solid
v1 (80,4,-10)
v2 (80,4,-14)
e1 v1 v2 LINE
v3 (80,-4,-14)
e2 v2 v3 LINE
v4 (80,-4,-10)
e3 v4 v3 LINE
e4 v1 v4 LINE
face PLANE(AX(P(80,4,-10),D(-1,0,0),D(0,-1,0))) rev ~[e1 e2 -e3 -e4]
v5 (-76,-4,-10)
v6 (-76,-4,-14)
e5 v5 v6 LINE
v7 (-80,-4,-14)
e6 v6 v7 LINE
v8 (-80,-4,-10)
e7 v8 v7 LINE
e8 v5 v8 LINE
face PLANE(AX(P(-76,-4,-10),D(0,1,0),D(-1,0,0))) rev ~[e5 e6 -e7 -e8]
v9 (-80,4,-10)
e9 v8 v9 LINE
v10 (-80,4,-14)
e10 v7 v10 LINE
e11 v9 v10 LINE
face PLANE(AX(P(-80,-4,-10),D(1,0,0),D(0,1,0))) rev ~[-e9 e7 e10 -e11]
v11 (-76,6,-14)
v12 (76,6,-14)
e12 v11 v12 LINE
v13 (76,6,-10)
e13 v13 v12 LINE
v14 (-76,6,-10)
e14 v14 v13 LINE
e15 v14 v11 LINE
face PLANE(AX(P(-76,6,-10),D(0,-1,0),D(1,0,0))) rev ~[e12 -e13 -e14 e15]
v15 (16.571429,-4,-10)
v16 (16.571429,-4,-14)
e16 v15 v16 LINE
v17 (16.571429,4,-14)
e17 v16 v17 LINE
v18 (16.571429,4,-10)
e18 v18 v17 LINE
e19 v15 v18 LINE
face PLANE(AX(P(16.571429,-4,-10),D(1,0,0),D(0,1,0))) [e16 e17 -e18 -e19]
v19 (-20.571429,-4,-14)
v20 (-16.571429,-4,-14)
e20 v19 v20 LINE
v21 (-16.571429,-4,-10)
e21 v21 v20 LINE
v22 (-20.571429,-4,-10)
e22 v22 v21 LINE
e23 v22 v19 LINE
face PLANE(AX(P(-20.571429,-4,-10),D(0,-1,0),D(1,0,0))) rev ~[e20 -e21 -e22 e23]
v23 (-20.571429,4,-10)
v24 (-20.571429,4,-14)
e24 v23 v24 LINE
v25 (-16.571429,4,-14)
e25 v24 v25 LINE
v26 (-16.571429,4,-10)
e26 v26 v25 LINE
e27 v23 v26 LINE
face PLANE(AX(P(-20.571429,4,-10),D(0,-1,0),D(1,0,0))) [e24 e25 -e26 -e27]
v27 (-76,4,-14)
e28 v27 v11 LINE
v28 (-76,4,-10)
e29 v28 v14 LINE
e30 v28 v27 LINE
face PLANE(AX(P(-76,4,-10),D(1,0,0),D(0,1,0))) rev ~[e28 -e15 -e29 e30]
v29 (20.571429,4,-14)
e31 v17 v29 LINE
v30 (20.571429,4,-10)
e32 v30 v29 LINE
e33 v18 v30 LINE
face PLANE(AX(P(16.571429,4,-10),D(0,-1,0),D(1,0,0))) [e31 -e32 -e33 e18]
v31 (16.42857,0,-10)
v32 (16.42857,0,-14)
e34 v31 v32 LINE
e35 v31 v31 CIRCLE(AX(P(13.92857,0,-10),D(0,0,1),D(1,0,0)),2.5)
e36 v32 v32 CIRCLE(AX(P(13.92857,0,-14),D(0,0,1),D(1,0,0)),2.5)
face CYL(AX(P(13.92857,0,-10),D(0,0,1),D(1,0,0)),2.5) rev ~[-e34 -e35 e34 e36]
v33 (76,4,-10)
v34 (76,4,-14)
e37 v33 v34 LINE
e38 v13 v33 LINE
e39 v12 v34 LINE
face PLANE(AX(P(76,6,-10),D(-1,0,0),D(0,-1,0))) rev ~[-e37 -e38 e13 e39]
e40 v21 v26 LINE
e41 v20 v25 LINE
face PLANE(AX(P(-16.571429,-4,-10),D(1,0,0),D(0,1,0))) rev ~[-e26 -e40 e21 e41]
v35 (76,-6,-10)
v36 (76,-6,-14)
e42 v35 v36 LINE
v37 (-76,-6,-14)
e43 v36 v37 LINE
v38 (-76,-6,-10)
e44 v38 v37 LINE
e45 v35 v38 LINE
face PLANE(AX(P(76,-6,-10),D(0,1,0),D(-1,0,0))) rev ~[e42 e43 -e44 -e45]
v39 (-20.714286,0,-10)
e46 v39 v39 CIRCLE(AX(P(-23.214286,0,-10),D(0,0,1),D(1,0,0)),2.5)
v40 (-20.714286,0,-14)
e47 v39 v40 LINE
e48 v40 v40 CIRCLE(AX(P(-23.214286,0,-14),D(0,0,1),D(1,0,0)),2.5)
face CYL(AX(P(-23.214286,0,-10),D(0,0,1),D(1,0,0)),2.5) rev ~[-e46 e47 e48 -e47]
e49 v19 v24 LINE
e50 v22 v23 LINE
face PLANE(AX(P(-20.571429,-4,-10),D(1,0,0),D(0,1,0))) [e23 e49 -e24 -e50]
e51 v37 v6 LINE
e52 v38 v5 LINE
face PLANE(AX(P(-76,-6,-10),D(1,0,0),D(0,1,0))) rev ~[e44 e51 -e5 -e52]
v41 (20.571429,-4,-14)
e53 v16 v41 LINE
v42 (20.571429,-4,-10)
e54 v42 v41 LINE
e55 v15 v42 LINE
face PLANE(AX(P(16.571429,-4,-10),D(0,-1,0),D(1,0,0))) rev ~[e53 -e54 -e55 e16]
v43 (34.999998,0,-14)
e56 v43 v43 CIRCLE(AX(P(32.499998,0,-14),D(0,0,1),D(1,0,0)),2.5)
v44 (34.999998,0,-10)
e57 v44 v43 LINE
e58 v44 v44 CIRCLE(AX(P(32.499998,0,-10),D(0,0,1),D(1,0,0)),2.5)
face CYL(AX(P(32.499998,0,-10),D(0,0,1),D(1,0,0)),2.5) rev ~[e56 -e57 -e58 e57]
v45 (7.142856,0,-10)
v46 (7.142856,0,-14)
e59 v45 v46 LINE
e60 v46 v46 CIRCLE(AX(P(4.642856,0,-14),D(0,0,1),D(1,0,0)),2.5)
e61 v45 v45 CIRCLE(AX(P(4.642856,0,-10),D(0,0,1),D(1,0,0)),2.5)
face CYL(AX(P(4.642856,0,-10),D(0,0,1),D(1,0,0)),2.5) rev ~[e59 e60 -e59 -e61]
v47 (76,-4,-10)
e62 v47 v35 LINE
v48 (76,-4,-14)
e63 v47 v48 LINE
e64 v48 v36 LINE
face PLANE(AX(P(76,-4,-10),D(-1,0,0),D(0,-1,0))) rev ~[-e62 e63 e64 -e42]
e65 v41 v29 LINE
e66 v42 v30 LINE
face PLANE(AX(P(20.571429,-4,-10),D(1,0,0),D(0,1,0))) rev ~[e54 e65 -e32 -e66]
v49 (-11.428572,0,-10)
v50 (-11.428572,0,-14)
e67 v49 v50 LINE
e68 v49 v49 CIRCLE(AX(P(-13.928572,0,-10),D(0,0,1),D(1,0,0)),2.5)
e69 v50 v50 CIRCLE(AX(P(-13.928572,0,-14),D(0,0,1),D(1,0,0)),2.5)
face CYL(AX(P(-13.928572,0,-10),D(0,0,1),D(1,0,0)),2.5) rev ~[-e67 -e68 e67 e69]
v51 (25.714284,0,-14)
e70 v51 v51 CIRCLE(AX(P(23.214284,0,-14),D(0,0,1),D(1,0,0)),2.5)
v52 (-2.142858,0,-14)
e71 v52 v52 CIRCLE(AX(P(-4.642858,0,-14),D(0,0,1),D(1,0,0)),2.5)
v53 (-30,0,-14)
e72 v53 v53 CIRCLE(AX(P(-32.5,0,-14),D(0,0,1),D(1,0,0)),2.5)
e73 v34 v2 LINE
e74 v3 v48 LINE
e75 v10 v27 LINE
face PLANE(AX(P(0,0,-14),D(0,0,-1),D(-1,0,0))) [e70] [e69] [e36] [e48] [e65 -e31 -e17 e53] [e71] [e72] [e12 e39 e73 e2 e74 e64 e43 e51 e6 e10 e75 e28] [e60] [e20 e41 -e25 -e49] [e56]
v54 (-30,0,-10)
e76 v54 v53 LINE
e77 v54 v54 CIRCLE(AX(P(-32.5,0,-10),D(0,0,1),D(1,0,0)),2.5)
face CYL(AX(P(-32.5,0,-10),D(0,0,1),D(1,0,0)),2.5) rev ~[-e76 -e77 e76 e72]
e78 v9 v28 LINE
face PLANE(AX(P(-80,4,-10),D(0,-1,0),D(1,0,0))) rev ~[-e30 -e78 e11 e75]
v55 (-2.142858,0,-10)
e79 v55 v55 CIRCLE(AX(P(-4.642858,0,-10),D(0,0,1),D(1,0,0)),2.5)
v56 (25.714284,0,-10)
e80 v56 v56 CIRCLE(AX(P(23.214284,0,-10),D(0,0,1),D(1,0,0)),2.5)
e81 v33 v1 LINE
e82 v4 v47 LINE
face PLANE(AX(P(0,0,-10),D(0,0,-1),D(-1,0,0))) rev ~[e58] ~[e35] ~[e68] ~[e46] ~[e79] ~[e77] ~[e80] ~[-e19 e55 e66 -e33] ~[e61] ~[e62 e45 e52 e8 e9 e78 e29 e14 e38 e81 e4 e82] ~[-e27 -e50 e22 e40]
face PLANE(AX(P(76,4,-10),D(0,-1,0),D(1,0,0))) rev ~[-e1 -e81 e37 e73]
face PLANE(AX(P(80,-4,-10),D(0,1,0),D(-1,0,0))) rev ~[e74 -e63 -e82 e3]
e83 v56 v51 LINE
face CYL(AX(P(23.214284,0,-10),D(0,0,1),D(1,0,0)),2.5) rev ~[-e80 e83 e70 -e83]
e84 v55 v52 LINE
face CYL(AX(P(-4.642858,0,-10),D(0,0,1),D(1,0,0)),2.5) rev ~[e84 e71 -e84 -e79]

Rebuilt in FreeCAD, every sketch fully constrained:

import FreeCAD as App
import Part
import Sketcher

doc = App.newDocument("Part")
body = doc.addObject("PartDesign::Body", "Body")

sketch1 = body.newObject("Sketcher::SketchObject", "Sketch")
sketch1.AttachmentSupport = (doc.getObject("XY_Plane"), [""])
sketch1.MapMode = "FlatFace"
sketch1.addGeometry([
    Part.LineSegment(App.Vector(-76, -4, 0), App.Vector(-76, -6, 0)),
    Part.LineSegment(App.Vector(-76, -6, 0), App.Vector(76, -6, 0)),
    Part.LineSegment(App.Vector(76, -6, 0), App.Vector(76, -4, 0)),
    Part.LineSegment(App.Vector(76, -4, 0), App.Vector(80, -4, 0)),
    Part.LineSegment(App.Vector(80, -4, 0), App.Vector(80, 4, 0)),
    Part.LineSegment(App.Vector(80, 4, 0), App.Vector(76, 4, 0)),
    Part.LineSegment(App.Vector(76, 4, 0), App.Vector(76, 6, 0)),
    Part.LineSegment(App.Vector(76, 6, 0), App.Vector(-76, 6, 0)),
    Part.LineSegment(App.Vector(-76, 6, 0), App.Vector(-76, 4, 0)),
    Part.LineSegment(App.Vector(-76, 4, 0), App.Vector(-80, 4, 0)),
    Part.LineSegment(App.Vector(-80, 4, 0), App.Vector(-80, -4, 0)),
    Part.LineSegment(App.Vector(-80, -4, 0), App.Vector(-76, -4, 0)),
], False)
sketch1.addConstraint([
    Sketcher.Constraint("Coincident", 0, 2, 1, 1),
    Sketcher.Constraint("Coincident", 1, 2, 2, 1),
    Sketcher.Constraint("Coincident", 2, 2, 3, 1),
    Sketcher.Constraint("Coincident", 3, 2, 4, 1),
    Sketcher.Constraint("Coincident", 4, 2, 5, 1),
    Sketcher.Constraint("Coincident", 5, 2, 6, 1),
    Sketcher.Constraint("Coincident", 6, 2, 7, 1),
    Sketcher.Constraint("Coincident", 7, 2, 8, 1),
    Sketcher.Constraint("Coincident", 8, 2, 9, 1),
    Sketcher.Constraint("Coincident", 9, 2, 10, 1),
    Sketcher.Constraint("Coincident", 10, 2, 11, 1),
    Sketcher.Constraint("Coincident", 11, 2, 0, 1),
    Sketcher.Constraint("Vertical", 0),
    Sketcher.Constraint("Horizontal", 1),
    Sketcher.Constraint("Vertical", 2),
    Sketcher.Constraint("Horizontal", 3),
    Sketcher.Constraint("Vertical", 4),
    Sketcher.Constraint("Horizontal", 5),
    Sketcher.Constraint("Vertical", 6),
    Sketcher.Constraint("Horizontal", 7),
    Sketcher.Constraint("Vertical", 8),
    Sketcher.Constraint("Horizontal", 9),
    Sketcher.Constraint("Vertical", 10),
    Sketcher.Constraint("Horizontal", 11),
    Sketcher.Constraint("Symmetric", 0, 2, 6, 2, -1, 1),
    Sketcher.Constraint("Symmetric", 2, 2, 8, 2, -1, 1),
    Sketcher.Constraint("Symmetric", 4, 2, 10, 2, -1, 1),
    Sketcher.Constraint("Symmetric", 5, 2, 8, 2, -2),
    Sketcher.Constraint("DistanceX", 1, 1, 1, 2, 152.0),
    Sketcher.Constraint("DistanceX", 3, 1, 3, 2, 4.0),
    Sketcher.Constraint("DistanceY", 0, 2, 0, 1, 2.0),
    Sketcher.Constraint("DistanceY", 4, 1, 4, 2, 8.0),
])
pad1 = body.newObject("PartDesign::Pad", "Pad")
pad1.Profile = sketch1
pad1.Length = 4
pad1.Reversed = True

sketch2 = body.newObject("Sketcher::SketchObject", "Sketch001")
sketch2.AttachmentSupport = (doc.getObject("XY_Plane"), [""])
sketch2.MapMode = "FlatFace"
sketch2.addGeometry(Part.Circle(App.Vector(-32.5, 0, 0), App.Vector(0, 0, 1), 2.5), False)
sketch2.addConstraint([
    Sketcher.Constraint("PointOnObject", 0, 3, -1),
    Sketcher.Constraint("Diameter", 0, 5.0),
    Sketcher.Constraint("DistanceX", 0, 3, -1, 1, 32.5),
])
pocket1 = body.newObject("PartDesign::Pocket", "Pocket")
pocket1.Profile = sketch2
pocket1.Length = 4
doc.recompute()

linearpattern = body.newObject("PartDesign::LinearPattern", "LinearPattern")
linearpattern.Originals = [pocket1]
linearpattern.Direction = (doc.getObject("X_Axis"), [""])
linearpattern.Mode = "offset"
linearpattern.Offset = 9.285714
linearpattern.Occurrences = 8
body.Tip = linearpattern

sketch3 = body.newObject("Sketcher::SketchObject", "Sketch002")
sketch3.AttachmentSupport = (doc.getObject("XY_Plane"), [""])
sketch3.MapMode = "FlatFace"
sketch3.addGeometry([
    Part.LineSegment(App.Vector(16.571429, 4, 0), App.Vector(16.571429, -4, 0)),
    Part.LineSegment(App.Vector(16.571429, -4, 0), App.Vector(20.571429, -4, 0)),
    Part.LineSegment(App.Vector(20.571429, -4, 0), App.Vector(20.571429, 4, 0)),
    Part.LineSegment(App.Vector(20.571429, 4, 0), App.Vector(16.571429, 4, 0)),
    Part.LineSegment(App.Vector(-20.571429, 4, 0), App.Vector(-20.571429, -4, 0)),
    Part.LineSegment(App.Vector(-20.571429, -4, 0), App.Vector(-16.571429, -4, 0)),
    Part.LineSegment(App.Vector(-16.571429, -4, 0), App.Vector(-16.571429, 4, 0)),
    Part.LineSegment(App.Vector(-16.571429, 4, 0), App.Vector(-20.571429, 4, 0)),
], False)
sketch3.addConstraint([
    Sketcher.Constraint("Coincident", 0, 2, 1, 1),
    Sketcher.Constraint("Coincident", 1, 2, 2, 1),
    Sketcher.Constraint("Coincident", 2, 2, 3, 1),
    Sketcher.Constraint("Coincident", 3, 2, 0, 1),
    Sketcher.Constraint("Coincident", 4, 2, 5, 1),
    Sketcher.Constraint("Coincident", 5, 2, 6, 1),
    Sketcher.Constraint("Coincident", 6, 2, 7, 1),
    Sketcher.Constraint("Coincident", 7, 2, 4, 1),
    Sketcher.Constraint("Vertical", 0),
    Sketcher.Constraint("Horizontal", 1),
    Sketcher.Constraint("Vertical", 2),
    Sketcher.Constraint("Horizontal", 3),
    Sketcher.Constraint("Vertical", 4),
    Sketcher.Constraint("Horizontal", 5),
    Sketcher.Constraint("Vertical", 6),
    Sketcher.Constraint("Horizontal", 7),
    Sketcher.Constraint("Symmetric", 2, 2, 4, 2, -1, 1),
    Sketcher.Constraint("Symmetric", 0, 2, 6, 2, -1, 1),
    Sketcher.Constraint("Horizontal", 1, 2, 4, 2),
    Sketcher.Constraint("DistanceX", 1, 1, 1, 2, 4.0),
    Sketcher.Constraint("DistanceY", 0, 2, 0, 1, 8.0),
    Sketcher.Constraint("DistanceX", -1, 1, 0, 2, 16.571429),
])
pocket2 = body.newObject("PartDesign::Pocket", "Pocket001")
pocket2.Profile = sketch3
pocket2.Length = 4
body2 = doc.addObject("PartDesign::Body", "Body001")
doc.recompute()

body.Placement = App.Placement(App.Vector(0, 0, -10), App.Rotation(App.Vector(0, 0, 1), 0))
boolean = body2.newObject("PartDesign::Boolean", "Boolean")
boolean.Type = "Fuse"
boolean.addObjects([body])

doc.recompute()
